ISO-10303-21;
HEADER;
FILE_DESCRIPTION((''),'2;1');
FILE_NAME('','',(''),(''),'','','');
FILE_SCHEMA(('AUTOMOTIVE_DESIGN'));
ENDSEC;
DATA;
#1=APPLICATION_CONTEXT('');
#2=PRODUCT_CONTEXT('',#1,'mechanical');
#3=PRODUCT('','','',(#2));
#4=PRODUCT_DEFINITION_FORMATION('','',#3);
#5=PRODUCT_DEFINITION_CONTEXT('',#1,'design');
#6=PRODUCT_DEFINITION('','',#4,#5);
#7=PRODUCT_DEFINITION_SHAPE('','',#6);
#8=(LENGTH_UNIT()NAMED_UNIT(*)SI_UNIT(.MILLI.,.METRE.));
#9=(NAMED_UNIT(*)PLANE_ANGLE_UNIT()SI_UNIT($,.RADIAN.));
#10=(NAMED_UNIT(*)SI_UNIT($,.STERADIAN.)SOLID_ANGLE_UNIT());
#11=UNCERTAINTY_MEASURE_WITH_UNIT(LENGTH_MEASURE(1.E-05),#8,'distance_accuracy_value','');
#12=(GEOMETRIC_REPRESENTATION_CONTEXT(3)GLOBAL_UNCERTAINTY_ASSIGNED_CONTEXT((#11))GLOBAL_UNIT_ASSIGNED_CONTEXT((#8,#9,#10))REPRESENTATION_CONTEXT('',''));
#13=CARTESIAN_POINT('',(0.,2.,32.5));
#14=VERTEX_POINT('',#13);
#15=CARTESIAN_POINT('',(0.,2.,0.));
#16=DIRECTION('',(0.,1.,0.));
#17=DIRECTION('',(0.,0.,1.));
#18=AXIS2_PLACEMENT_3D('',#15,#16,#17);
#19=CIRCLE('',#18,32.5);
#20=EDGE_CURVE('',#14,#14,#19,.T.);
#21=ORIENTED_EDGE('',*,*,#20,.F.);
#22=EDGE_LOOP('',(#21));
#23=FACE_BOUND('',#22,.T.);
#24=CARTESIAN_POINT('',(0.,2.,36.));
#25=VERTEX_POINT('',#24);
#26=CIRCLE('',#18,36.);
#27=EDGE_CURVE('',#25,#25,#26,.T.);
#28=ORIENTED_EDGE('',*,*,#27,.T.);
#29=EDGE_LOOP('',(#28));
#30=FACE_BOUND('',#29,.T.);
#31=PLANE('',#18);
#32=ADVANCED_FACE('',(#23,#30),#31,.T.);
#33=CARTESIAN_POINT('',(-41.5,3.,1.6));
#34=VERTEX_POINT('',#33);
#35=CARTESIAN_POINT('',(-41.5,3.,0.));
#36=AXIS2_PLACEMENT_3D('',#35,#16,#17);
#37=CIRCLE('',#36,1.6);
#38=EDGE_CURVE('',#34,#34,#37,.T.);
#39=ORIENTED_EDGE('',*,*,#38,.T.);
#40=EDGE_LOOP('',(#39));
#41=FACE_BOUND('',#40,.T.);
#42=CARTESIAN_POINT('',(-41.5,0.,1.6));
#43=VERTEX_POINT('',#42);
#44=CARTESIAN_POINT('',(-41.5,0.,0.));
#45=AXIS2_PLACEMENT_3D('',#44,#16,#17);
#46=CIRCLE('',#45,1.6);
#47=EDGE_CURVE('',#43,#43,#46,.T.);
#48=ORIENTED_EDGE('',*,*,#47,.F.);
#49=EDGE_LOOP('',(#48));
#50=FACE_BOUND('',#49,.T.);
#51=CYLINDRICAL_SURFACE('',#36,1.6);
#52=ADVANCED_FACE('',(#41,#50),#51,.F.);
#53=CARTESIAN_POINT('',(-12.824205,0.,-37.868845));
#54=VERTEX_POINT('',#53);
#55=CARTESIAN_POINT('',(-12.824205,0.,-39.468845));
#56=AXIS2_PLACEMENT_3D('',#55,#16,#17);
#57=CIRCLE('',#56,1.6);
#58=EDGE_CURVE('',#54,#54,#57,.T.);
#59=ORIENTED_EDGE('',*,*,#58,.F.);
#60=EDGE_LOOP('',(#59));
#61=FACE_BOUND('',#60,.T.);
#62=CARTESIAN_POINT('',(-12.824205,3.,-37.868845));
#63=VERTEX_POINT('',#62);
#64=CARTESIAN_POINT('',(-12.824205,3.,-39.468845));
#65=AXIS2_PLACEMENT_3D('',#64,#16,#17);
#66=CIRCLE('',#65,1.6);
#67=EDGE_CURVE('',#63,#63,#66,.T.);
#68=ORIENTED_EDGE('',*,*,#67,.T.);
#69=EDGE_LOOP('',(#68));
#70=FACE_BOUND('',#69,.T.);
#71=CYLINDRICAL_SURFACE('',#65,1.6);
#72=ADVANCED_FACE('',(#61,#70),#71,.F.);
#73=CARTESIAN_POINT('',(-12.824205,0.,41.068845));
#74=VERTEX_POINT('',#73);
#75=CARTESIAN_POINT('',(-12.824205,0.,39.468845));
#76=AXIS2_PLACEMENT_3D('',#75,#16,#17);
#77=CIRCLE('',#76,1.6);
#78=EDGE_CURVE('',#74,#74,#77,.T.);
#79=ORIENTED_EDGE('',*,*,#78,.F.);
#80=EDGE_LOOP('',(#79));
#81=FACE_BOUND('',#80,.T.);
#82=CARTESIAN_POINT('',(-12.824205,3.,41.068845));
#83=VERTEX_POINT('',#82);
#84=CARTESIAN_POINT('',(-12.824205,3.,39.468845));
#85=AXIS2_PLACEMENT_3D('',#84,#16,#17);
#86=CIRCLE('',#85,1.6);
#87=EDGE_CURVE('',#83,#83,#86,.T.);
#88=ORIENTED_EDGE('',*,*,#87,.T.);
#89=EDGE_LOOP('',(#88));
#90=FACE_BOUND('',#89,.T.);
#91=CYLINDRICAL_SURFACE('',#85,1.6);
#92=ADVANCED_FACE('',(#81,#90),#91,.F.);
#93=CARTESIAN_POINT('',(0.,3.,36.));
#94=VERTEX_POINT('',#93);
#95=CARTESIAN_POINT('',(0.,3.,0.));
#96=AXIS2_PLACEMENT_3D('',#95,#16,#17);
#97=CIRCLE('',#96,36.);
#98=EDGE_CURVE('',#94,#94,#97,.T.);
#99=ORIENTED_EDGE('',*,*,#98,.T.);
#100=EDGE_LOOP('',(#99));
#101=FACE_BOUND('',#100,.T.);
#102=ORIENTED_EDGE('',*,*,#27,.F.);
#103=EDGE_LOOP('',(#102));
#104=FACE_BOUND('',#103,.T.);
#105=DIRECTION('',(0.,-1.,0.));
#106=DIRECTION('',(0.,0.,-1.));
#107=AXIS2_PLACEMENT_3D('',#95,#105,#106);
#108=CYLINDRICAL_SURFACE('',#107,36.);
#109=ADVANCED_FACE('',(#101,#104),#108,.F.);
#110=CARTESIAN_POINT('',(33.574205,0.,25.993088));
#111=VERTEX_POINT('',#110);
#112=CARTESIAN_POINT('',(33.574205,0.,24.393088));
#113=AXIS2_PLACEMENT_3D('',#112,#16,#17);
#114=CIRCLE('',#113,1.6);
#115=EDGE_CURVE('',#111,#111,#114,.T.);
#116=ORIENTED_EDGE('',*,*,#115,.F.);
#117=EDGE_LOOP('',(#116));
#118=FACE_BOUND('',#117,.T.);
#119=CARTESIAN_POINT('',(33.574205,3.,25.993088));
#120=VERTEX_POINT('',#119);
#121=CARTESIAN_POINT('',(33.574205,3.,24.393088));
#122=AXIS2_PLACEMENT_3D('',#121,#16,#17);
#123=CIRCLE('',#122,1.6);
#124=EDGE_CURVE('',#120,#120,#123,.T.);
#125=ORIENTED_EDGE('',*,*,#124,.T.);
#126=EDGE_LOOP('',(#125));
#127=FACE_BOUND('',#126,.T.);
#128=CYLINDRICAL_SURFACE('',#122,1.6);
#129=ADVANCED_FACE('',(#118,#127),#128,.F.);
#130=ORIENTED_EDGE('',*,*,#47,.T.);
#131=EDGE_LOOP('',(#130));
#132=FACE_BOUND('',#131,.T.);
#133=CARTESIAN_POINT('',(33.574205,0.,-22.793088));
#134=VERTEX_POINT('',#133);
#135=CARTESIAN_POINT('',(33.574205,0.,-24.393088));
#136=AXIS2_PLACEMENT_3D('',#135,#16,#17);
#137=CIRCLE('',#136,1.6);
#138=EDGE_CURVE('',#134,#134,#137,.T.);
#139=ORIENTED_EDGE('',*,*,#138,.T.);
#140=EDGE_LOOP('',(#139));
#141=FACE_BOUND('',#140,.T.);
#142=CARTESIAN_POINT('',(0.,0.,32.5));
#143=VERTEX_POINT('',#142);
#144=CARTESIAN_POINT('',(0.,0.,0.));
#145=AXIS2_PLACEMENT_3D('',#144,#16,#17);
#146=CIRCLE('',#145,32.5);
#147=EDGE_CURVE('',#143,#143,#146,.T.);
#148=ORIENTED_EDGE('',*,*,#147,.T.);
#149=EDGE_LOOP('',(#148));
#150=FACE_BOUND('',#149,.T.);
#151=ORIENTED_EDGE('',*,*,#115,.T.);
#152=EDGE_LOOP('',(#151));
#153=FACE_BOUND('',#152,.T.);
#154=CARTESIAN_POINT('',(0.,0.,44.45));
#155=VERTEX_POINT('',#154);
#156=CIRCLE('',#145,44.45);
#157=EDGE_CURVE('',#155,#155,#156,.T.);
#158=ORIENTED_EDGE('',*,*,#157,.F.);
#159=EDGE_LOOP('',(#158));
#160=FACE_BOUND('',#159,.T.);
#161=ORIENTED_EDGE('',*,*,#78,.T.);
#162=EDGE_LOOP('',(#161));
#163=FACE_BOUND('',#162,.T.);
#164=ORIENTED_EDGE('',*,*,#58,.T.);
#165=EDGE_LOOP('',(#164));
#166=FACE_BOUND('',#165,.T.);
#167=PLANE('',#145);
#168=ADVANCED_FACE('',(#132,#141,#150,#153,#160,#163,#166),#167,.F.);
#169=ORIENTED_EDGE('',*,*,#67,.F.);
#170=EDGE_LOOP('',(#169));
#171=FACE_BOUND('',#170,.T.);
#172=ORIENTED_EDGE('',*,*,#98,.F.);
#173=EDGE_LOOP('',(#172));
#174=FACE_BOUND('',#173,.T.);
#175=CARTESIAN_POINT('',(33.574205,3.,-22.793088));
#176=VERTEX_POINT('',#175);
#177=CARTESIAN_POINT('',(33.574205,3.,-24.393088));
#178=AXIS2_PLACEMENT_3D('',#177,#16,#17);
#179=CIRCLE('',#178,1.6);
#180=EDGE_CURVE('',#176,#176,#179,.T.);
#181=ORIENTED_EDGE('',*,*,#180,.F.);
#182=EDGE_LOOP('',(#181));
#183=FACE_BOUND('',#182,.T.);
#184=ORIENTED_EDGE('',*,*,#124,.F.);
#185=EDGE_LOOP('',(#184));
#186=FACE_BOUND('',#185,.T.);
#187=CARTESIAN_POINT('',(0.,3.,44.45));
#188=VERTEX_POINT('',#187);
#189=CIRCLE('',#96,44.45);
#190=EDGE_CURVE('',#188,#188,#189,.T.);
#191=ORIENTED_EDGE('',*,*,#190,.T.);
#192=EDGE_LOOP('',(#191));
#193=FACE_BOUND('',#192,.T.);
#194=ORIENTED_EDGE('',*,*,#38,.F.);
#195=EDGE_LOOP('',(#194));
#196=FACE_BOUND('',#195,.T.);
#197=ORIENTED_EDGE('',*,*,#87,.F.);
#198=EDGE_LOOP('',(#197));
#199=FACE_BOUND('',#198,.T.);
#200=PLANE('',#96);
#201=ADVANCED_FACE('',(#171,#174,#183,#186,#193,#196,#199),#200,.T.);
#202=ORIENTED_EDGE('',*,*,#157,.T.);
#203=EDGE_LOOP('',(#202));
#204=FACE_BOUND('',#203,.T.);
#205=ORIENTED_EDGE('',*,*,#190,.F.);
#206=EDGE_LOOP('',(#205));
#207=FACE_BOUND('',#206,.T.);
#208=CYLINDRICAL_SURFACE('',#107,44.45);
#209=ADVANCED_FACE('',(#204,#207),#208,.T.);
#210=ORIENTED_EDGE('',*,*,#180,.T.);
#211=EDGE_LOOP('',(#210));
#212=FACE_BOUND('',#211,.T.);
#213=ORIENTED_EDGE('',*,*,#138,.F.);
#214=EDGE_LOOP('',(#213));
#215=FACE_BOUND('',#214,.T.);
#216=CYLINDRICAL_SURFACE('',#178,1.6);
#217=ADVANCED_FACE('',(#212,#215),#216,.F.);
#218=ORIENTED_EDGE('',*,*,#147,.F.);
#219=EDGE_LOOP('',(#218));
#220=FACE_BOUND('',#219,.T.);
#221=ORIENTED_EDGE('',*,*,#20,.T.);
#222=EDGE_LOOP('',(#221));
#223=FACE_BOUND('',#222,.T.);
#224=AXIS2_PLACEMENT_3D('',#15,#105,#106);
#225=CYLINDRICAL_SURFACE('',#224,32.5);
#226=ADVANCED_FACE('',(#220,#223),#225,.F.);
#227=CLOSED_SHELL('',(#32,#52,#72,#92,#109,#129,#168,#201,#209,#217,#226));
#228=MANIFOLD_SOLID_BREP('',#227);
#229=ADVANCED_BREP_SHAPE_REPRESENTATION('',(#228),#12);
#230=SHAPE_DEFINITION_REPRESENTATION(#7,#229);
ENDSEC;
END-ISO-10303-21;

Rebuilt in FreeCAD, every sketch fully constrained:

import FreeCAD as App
import Part
import Sketcher
from FreeCAD import Vector
Q = App.Units.Quantity

doc = App.newDocument("Part")
body = doc.addObject("PartDesign::Body", "Body")

sketch1 = body.newObject("Sketcher::SketchObject", "Sketch")
sketch1.AttachmentSupport = (doc.getObject("XZ_Plane"), [""])
sketch1.MapMode = "FlatFace"
sketch1.addGeometry([
    Part.Circle(Vector(0, 0, 0), Vector(0, 0, 1), 44),
    Part.Circle(Vector(0, 0, 0), Vector(0, 0, 1), 36),
], False)
sketch1.addConstraint([
    Sketcher.Constraint("Coincident", 0, 3, -1, 1),
    Sketcher.Constraint("Coincident", 1, 3, -1, 1),
    Sketcher.Constraint("Diameter", 1, Q("72 mm")),
    Sketcher.Constraint("Diameter", 0, Q("88.9 mm")),
])
pad1 = body.newObject("PartDesign::Pad", "Pad")
pad1.Profile = sketch1
pad1.Length = 3
pad1.Reversed = True

sketch2 = body.newObject("Sketcher::SketchObject", "Sketch001")
sketch2.AttachmentSupport = (doc.getObject("XZ_Plane"), [""])
sketch2.MapMode = "FlatFace"
sketch2.addGeometry([
    Part.Circle(Vector(0, 0, 0), Vector(0, 0, 1), 36),
    Part.Circle(Vector(0, 0, 0), Vector(0, 0, 1), 32),
], False)
sketch2.addConstraint([
    Sketcher.Constraint("Coincident", 0, 3, -1, 1),
    Sketcher.Constraint("Coincident", 1, 3, -1, 1),
    Sketcher.Constraint("Diameter", 0, Q("72 mm")),
    Sketcher.Constraint("Diameter", 1, Q("65 mm")),
])
pad2 = body.newObject("PartDesign::Pad", "Pad001")
pad2.Profile = sketch2
pad2.Length = 2
pad2.Reversed = True

sketch3 = body.newObject("Sketcher::SketchObject", "Sketch002")
sketch3.AttachmentSupport = (doc.getObject("XZ_Plane"), [""])
sketch3.MapMode = "FlatFace"
sketch3.AttachmentOffset = App.Placement(Vector(0, 0, -3), App.Rotation())
sketch3.addGeometry(Part.Circle(Vector(-41.5, 0, 0), Vector(0, 0, 1), 1.6), False)
sketch3.addConstraint([
    Sketcher.Constraint("PointOnObject", 0, 3, -1),
    Sketcher.Constraint("Diameter", 0, Q("3.2 mm")),
    Sketcher.Constraint("DistanceX", 0, 3, -1, 1, Q("41.5 mm")),
])
doc.recompute()
hole = body.newObject("PartDesign::Hole", "Hole")
hole.Profile = sketch3
hole.ThreadType = "None"
hole.Diameter = 3.2
hole.DepthType = "ThroughAll"
hole.Reversed = True
doc.recompute()

polarpattern = body.newObject("PartDesign::PolarPattern", "PolarPattern")
polarpattern.Originals = [hole]
polarpattern.Axis = (doc.getObject("Y_Axis"), [""])
polarpattern.Angle = 360
polarpattern.Occurrences = 5
body.Tip = polarpattern

doc.recompute()
